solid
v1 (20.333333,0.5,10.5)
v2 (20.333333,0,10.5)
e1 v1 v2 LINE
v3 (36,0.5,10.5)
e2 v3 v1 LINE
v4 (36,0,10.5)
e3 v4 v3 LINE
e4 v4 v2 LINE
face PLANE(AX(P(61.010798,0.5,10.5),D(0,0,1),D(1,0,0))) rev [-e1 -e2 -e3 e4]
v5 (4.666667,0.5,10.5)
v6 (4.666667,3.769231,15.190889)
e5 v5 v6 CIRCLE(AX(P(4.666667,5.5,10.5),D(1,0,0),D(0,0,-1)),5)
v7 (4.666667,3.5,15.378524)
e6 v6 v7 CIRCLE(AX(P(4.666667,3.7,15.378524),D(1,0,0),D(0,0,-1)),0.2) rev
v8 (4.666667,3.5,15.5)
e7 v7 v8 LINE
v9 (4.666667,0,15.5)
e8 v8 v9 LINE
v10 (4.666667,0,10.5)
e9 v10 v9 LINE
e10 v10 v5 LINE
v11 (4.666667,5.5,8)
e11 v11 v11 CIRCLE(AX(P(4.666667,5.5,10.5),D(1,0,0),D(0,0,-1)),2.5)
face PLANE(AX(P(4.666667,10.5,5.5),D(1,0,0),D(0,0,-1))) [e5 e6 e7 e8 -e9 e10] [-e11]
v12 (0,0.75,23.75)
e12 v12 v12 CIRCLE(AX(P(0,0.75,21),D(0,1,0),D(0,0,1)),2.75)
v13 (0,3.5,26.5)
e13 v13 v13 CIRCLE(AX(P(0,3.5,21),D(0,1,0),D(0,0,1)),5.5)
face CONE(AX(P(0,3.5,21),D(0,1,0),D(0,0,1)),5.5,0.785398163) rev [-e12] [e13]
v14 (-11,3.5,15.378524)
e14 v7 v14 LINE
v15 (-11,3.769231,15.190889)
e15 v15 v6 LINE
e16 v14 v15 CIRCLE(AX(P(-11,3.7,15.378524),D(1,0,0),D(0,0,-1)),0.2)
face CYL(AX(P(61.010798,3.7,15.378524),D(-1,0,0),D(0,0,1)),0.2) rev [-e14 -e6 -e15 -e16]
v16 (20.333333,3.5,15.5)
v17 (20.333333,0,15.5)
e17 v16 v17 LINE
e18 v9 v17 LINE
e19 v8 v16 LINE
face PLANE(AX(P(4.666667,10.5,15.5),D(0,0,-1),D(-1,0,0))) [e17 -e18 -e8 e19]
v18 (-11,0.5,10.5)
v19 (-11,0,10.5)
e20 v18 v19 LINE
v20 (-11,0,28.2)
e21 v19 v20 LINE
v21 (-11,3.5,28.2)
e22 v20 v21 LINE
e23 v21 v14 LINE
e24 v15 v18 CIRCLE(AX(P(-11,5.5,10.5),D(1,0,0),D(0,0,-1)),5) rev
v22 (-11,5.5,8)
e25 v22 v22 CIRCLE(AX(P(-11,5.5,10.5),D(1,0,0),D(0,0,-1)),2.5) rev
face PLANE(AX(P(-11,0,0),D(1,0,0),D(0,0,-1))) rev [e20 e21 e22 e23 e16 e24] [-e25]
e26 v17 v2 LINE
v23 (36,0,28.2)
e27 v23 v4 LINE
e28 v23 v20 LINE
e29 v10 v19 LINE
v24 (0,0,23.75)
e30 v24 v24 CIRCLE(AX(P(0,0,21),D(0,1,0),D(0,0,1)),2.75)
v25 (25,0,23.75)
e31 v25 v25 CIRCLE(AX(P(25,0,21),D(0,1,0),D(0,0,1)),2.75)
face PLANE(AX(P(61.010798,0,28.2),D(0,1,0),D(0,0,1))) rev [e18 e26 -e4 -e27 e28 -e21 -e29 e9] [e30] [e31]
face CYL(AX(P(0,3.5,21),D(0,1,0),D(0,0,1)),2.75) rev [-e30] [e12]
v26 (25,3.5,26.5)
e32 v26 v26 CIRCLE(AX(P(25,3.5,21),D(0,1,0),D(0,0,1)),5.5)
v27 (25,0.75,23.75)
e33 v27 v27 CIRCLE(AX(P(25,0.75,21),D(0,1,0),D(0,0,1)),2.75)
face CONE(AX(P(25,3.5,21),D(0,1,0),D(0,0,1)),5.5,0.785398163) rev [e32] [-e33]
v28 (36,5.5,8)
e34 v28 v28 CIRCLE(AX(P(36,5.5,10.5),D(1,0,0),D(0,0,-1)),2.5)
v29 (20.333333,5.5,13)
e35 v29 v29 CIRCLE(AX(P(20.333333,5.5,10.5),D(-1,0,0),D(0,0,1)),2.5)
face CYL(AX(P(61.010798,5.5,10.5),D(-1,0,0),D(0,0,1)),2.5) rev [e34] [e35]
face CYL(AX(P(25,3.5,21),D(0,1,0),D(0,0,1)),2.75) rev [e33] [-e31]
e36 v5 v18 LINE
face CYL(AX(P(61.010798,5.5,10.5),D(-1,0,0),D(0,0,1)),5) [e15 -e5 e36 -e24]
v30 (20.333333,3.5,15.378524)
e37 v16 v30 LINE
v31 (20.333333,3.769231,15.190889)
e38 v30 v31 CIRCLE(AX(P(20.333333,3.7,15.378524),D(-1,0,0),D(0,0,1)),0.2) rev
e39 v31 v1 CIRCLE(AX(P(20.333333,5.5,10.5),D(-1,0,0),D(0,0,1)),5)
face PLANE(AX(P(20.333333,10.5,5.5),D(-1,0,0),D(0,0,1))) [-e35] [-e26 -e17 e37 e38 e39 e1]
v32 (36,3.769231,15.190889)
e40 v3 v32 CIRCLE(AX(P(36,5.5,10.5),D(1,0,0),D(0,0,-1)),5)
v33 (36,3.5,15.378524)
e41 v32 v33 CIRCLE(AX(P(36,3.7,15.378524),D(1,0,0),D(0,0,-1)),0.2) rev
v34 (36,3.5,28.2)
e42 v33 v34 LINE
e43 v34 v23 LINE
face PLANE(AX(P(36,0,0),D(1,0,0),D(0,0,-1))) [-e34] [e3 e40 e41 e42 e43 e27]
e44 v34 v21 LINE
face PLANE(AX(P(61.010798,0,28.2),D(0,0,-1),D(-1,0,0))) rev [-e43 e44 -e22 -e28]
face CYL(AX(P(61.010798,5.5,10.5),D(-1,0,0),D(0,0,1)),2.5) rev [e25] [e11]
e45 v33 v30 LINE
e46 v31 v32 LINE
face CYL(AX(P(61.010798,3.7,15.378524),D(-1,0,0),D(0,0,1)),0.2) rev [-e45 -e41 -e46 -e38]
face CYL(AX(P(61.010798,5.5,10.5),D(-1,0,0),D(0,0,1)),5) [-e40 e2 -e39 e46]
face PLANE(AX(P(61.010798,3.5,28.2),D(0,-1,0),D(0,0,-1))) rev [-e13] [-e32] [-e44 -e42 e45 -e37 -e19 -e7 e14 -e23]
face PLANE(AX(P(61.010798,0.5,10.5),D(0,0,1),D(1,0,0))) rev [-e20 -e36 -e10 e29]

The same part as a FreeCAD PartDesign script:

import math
import FreeCAD as App
import Part
import Sketcher
Q = App.Units.Quantity


def edges_at(feature, points):
    """Names of the edges that pass closest to the given points."""
    edges = feature.Shape.Edges
    near = lambda p: min(range(len(edges)), key=lambda i: edges[i].distToShape(Part.Vertex(*p))[0])
    return sorted({f"Edge{near(p) + 1}" for p in points})

doc = App.newDocument("Part")
body = doc.addObject("PartDesign::Body", "Body")

# Sketch on YZ plane
sketch1 = body.newObject("Sketcher::SketchObject", "Sketch")
sketch1.AttachmentSupport = (doc.getObject("YZ_Plane"), [""])
sketch1.MapMode = "FlatFace"
sketch1.addGeometry([
    Part.LineSegment(App.Vector(0, 28.2, 0), App.Vector(0, 10.5, 0)),  # 0
    Part.LineSegment(App.Vector(0, 10.5, 0), App.Vector(0.5, 10.5, 0)),  # 1
    Part.ArcOfCircle(Part.Circle(App.Vector(5.5, 10.5, 0), App.Vector(0, 0, 1), 5), math.radians(180), math.radians(474)),  # 2
    Part.LineSegment(App.Vector(3.5, 15.1, 0), App.Vector(3.5, 28.2, 0)),  # 3
    Part.LineSegment(App.Vector(3.5, 28.2, 0), App.Vector(0, 28.2, 0)),  # 4
    Part.Circle(App.Vector(5.5, 10.5, 0), App.Vector(0, 0, 1), 2.5),  # 5
], False)
sketch1.addConstraint([
    Sketcher.Constraint("Coincident", 0, 2, 1, 1),
    Sketcher.Constraint("Coincident", 1, 2, 2, 1),
    Sketcher.Constraint("Coincident", 2, 2, 3, 1),
    Sketcher.Constraint("Coincident", 3, 2, 4, 1),
    Sketcher.Constraint("Coincident", 4, 2, 0, 1),
    Sketcher.Constraint("Vertical", 0),
    Sketcher.Constraint("Horizontal", 1),
    Sketcher.Constraint("Vertical", 3),
    Sketcher.Constraint("Horizontal", 4),
    Sketcher.Constraint("Coincident", 5, 3, 2, 3),
    Sketcher.Constraint("PointOnObject", 0, 2, -2),
    Sketcher.Constraint("Horizontal", 5, 3, 0, 2),
    Sketcher.Constraint("Diameter", 5, Q("5 mm")),
    Sketcher.Constraint("Radius", 2, Q("5 mm")),
    Sketcher.Constraint("DistanceX", 1, 1, 1, 2, Q("0.5 mm")),
    Sketcher.Constraint("DistanceX", 4, 2, 4, 1, Q("3.5 mm")),
    Sketcher.Constraint("DistanceY", 0, 2, 0, 1, Q("17.7 mm")),
    Sketcher.Constraint("DistanceY", -1, 1, 2, 3, Q("10.5 mm")),
])
pad1 = body.newObject("PartDesign::Pad", "Pad")
pad1.Profile = sketch1
pad1.Type = "TwoLengths"
pad1.Length = 36
pad1.Length2 = 11
doc.recompute()

fillet = body.newObject("PartDesign::Fillet", "Fillet")
fillet.Base = (pad1, edges_at(pad1, [(12.5, 3.5, 15.083)]))
fillet.Radius = 0.2

# Sketch on XZ plane
sketch2 = body.newObject("Sketcher::SketchObject", "Sketch001")
sketch2.AttachmentSupport = (doc.getObject("XZ_Plane"), [""])
sketch2.MapMode = "FlatFace"
sketch2.addGeometry([
    Part.LineSegment(App.Vector(5, 6, 0), App.Vector(5, 16, 0)),  # 0
    Part.LineSegment(App.Vector(5, 16, 0), App.Vector(20, 16, 0)),  # 1
    Part.LineSegment(App.Vector(20, 16, 0), App.Vector(20, 6, 0)),  # 2
    Part.LineSegment(App.Vector(20, 6, 0), App.Vector(5, 6, 0)),  # 3
    Part.LineSegment(App.Vector(36, 6, 0), App.Vector(36, 16, 0)),  # 4
    Part.LineSegment(App.Vector(36, 16, 0), App.Vector(52, 16, 0)),  # 5
    Part.LineSegment(App.Vector(52, 16, 0), App.Vector(52, 6, 0)),  # 6
    Part.LineSegment(App.Vector(52, 6, 0), App.Vector(36, 6, 0)),  # 7
], False)
sketch2.addConstraint([
    Sketcher.Constraint("Coincident", 0, 2, 1, 1),
    Sketcher.Constraint("Coincident", 1, 2, 2, 1),
    Sketcher.Constraint("Coincident", 2, 2, 3, 1),
    Sketcher.Constraint("Coincident", 3, 2, 0, 1),
    Sketcher.Constraint("Coincident", 4, 2, 5, 1),
    Sketcher.Constraint("Coincident", 5, 2, 6, 1),
    Sketcher.Constraint("Coincident", 6, 2, 7, 1),
    Sketcher.Constraint("Coincident", 7, 2, 4, 1),
    Sketcher.Constraint("Vertical", 0),
    Sketcher.Constraint("Horizontal", 1),
    Sketcher.Constraint("Vertical", 2),
    Sketcher.Constraint("Horizontal", 3),
    Sketcher.Constraint("Vertical", 4),
    Sketcher.Constraint("Horizontal", 5),
    Sketcher.Constraint("Vertical", 6),
    Sketcher.Constraint("Horizontal", 7),
    Sketcher.Constraint("Horizontal", 1, 2, 4, 2),
    Sketcher.Constraint("Horizontal", 3, 2, 6, 2),
    Sketcher.Constraint("Equal", 3, 5),
    Sketcher.Constraint("DistanceY", 0, 1, 0, 2, Q("10 mm")),
    Sketcher.Constraint("DistanceX", -1, 1, 4, 2, Q("36 mm")),
    Sketcher.Constraint("DistanceX", 0, 2, 5, 2, Q("47 mm")),
    Sketcher.Constraint("DistanceY", -1, 1, 0, 2, Q("15.5 mm")),
    Sketcher.Constraint("DistanceX", 1, 1, 1, 2, Q("15.666667 mm")),
])
pocket1 = body.newObject("PartDesign::Pocket", "Pocket")
pocket1.Profile = sketch2
pocket1.Type = "ThroughAll"

# Sketch on YZ plane
sketch3 = body.newObject("Sketcher::SketchObject", "Sketch002")
sketch3.AttachmentSupport = (doc.getObject("YZ_Plane"), [""])
sketch3.MapMode = "FlatFace"
sketch3.addGeometry([
    Part.LineSegment(App.Vector(0, 21, 0), App.Vector(3.5, 21, 0)),  # 0
    Part.LineSegment(App.Vector(3.5, 21, 0), App.Vector(3.5, 26.5, 0)),  # 1
    Part.LineSegment(App.Vector(3.5, 26.5, 0), App.Vector(0.8, 23.8, 0)),  # 2
    Part.LineSegment(App.Vector(0.8, 23.8, 0), App.Vector(0, 23.8, 0)),  # 3
    Part.LineSegment(App.Vector(0, 23.8, 0), App.Vector(0, 21, 0)),  # 4
], False)
sketch3.addGeometry(Part.LineSegment(App.Vector(3.5, 21, 0), App.Vector(0, 21, 0)), True)  # axis
sketch3.addConstraint([
    Sketcher.Constraint("Coincident", 0, 2, 1, 1),
    Sketcher.Constraint("Coincident", 1, 2, 2, 1),
    Sketcher.Constraint("Coincident", 2, 2, 3, 1),
    Sketcher.Constraint("Coincident", 3, 2, 4, 1),
    Sketcher.Constraint("Coincident", 4, 2, 0, 1),
    Sketcher.Constraint("Horizontal", 0),
    Sketcher.Constraint("Vertical", 1),
    Sketcher.Constraint("Horizontal", 3),
    Sketcher.Constraint("Vertical", 4),
    Sketcher.Constraint("Horizontal", 5),
    Sketcher.Constraint("Coincident", 5, 1, 0, 2),
    Sketcher.Constraint("Vertical", 3, 2, 5, 2),
    Sketcher.Constraint("Angle", 2, Q("-135 deg")),
    Sketcher.Constraint("DistanceY", 1, 1, 1, 2, Q("5.5 mm")),
    Sketcher.Constraint("DistanceY", -1, 1, 0, 2, Q("21 mm")),
    Sketcher.Constraint("DistanceY", 4, 2, 4, 1, Q("2.75 mm")),
    Sketcher.Constraint("DistanceX", -1, 1, 0, 2, Q("3.5 mm")),
    Sketcher.Constraint("DistanceX", 0, 1, 0, 2, Q("3.50005 mm")),
])
groove = body.newObject("PartDesign::Groove", "Groove")
groove.Profile = sketch3
groove.ReferenceAxis = (sketch3, ["Axis0"])
groove.Angle = 360
doc.recompute()

linearpattern = body.newObject("PartDesign::LinearPattern", "LinearPattern")
linearpattern.Originals = [groove]
linearpattern.Direction = (doc.getObject("X_Axis"), [""])
linearpattern.Mode = "offset"
linearpattern.Offset = 25
linearpattern.Occurrences = 2
body.Tip = linearpattern

doc.recompute()
